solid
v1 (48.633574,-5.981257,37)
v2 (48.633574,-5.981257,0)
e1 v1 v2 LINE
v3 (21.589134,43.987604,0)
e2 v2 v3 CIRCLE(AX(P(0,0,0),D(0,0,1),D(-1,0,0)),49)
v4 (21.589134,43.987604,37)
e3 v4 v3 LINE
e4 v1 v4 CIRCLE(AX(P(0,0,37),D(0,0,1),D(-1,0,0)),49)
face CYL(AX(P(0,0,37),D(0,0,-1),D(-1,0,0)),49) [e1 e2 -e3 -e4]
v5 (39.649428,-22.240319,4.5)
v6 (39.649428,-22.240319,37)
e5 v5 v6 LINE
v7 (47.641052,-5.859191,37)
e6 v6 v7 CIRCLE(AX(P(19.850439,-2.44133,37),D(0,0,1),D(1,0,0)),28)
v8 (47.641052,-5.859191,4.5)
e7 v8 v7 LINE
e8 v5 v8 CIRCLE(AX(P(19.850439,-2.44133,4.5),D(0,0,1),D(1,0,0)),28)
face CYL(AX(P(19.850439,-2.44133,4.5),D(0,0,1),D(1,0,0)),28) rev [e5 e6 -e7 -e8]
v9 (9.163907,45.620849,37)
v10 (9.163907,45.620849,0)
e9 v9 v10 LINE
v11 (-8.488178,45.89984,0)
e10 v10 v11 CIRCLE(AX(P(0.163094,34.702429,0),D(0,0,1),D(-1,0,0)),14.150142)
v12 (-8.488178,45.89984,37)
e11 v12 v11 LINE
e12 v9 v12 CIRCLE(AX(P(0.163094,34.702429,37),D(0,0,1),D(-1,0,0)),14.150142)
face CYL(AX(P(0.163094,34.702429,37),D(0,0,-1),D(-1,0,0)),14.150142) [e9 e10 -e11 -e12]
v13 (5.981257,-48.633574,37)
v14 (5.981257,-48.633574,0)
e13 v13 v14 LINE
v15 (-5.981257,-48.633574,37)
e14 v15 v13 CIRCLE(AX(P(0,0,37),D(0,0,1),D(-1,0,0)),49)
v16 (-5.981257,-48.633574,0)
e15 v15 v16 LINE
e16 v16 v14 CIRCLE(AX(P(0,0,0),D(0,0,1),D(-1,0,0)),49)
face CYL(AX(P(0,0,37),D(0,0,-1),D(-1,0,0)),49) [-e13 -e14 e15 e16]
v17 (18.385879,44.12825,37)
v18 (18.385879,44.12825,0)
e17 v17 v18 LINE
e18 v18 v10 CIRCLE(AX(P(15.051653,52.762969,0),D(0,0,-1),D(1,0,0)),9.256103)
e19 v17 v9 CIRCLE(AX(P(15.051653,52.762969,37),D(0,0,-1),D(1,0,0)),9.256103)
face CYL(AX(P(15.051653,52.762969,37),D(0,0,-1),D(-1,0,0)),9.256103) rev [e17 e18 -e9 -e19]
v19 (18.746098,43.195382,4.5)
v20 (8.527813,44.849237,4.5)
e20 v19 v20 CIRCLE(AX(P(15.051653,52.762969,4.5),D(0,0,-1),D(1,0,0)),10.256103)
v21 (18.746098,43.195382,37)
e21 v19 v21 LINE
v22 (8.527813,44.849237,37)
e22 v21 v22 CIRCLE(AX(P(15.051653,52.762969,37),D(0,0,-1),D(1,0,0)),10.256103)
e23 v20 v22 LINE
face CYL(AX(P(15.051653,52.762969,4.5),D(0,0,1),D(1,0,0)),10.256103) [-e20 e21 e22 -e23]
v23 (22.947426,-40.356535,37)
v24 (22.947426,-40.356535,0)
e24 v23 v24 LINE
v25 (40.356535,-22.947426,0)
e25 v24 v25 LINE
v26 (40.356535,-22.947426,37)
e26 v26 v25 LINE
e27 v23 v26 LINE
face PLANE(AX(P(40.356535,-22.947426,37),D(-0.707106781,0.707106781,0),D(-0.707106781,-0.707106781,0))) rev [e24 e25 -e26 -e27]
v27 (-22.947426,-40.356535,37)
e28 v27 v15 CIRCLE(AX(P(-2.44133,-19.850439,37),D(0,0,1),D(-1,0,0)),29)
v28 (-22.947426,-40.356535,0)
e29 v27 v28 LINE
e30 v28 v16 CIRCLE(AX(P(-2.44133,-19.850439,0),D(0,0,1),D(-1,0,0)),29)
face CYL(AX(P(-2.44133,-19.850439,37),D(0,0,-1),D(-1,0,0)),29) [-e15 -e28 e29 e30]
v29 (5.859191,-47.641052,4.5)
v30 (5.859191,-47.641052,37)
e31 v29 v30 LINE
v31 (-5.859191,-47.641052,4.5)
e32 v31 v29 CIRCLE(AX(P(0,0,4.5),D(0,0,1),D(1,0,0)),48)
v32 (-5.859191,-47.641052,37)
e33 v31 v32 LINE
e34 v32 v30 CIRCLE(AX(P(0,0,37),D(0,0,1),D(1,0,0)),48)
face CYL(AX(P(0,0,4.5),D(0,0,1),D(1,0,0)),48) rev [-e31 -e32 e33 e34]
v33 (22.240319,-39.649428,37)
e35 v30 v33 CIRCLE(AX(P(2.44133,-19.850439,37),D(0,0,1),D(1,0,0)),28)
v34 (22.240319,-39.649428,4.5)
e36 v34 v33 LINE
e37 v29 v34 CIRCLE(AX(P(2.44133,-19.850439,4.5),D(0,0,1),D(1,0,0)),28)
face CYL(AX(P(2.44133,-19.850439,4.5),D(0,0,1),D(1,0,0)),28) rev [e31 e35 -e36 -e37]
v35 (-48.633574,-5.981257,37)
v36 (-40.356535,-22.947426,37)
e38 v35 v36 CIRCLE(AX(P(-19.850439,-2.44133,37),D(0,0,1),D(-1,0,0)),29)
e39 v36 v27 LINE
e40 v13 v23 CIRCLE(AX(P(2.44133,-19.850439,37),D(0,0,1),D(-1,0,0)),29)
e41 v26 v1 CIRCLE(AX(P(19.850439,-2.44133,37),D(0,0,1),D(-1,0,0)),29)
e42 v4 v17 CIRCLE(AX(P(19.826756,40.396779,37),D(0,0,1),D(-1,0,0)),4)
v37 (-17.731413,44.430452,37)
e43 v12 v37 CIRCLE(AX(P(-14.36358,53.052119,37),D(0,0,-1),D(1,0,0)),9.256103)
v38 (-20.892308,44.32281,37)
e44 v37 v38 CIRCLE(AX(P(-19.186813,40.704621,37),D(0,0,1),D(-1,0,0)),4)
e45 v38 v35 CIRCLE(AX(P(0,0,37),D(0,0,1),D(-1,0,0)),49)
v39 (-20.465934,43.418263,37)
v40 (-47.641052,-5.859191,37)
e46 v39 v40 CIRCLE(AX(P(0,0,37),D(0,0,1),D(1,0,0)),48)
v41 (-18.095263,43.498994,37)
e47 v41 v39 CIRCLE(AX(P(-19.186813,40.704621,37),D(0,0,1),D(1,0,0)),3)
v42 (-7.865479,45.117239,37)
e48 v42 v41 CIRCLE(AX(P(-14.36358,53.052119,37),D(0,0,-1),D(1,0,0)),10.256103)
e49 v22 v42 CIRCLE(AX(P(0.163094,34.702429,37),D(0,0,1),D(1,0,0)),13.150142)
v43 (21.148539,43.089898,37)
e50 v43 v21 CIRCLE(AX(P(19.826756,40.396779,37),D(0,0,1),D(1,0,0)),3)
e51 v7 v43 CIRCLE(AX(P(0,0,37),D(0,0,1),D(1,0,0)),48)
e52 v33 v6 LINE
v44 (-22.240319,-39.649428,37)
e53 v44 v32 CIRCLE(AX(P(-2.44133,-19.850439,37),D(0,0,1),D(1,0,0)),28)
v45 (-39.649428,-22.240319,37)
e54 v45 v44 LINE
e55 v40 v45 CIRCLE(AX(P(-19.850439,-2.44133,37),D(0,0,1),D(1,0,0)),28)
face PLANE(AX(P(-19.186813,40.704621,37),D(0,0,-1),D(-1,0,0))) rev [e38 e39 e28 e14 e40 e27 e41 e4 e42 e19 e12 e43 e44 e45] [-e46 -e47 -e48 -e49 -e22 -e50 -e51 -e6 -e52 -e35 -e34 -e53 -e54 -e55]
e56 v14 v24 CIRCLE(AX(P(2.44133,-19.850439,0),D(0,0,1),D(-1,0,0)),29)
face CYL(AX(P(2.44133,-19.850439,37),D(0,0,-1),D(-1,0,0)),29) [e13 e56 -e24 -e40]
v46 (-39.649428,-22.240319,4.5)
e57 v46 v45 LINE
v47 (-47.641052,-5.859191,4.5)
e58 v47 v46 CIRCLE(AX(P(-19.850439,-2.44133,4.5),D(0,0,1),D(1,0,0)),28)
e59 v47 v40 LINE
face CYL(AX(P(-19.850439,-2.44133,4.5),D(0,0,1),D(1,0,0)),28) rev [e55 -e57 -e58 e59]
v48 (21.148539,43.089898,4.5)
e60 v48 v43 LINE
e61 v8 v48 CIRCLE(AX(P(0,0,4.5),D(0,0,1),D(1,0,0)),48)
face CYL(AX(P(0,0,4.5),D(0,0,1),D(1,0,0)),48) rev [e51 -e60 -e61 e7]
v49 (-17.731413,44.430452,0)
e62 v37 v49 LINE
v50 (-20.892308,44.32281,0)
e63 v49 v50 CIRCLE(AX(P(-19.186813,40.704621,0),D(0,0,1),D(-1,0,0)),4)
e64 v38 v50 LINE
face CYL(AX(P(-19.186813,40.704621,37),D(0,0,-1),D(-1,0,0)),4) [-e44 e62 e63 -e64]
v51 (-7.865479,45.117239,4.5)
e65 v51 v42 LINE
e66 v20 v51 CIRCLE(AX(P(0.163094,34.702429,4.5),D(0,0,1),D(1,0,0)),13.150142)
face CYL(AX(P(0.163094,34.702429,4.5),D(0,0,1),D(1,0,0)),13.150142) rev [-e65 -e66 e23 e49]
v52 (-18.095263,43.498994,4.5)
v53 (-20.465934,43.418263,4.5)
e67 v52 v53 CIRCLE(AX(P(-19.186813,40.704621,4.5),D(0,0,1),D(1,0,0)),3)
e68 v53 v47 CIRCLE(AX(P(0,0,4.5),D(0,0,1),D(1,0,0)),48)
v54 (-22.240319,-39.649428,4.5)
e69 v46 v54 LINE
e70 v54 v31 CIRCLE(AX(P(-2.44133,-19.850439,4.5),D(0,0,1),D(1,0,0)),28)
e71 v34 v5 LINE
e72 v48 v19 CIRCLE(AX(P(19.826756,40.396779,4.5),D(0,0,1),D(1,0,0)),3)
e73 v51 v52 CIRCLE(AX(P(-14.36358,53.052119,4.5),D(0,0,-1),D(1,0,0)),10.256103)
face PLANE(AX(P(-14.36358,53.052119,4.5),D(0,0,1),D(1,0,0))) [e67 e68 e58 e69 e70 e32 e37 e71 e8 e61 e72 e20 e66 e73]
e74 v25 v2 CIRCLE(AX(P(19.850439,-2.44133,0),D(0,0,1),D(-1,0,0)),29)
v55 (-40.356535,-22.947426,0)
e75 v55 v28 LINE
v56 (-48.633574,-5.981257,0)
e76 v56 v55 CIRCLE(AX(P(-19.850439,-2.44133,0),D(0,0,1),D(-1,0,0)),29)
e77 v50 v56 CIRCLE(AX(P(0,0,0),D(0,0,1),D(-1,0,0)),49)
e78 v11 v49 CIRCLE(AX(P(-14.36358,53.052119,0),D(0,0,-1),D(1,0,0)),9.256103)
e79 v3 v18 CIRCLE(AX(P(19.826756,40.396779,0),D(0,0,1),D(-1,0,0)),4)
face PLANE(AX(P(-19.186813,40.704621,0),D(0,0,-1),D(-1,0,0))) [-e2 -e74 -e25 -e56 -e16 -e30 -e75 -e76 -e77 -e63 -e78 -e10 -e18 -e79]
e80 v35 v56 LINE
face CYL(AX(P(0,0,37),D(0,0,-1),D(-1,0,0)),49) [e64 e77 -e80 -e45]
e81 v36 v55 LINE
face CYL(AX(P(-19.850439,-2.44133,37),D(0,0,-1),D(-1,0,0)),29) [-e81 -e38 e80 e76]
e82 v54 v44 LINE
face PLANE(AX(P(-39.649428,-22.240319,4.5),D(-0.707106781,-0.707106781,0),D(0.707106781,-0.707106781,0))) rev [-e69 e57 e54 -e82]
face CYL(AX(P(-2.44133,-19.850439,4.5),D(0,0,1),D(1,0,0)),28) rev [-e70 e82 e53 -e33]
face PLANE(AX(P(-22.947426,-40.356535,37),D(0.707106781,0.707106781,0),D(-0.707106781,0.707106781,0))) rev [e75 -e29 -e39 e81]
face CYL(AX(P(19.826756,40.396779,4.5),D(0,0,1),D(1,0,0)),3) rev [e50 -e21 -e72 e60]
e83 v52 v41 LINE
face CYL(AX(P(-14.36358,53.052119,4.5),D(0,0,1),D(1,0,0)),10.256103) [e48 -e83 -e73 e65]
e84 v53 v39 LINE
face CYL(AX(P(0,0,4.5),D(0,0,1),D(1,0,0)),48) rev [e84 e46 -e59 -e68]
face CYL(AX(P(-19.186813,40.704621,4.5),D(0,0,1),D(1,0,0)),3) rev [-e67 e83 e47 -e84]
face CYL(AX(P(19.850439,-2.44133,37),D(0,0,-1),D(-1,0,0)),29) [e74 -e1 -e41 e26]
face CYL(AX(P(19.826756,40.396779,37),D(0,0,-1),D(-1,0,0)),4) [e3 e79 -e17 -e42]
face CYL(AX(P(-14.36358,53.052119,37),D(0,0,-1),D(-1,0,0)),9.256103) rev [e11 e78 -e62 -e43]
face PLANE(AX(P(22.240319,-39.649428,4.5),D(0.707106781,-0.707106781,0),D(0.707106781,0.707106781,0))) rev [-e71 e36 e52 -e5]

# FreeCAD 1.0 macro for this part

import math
import FreeCAD as App
import Part
import Sketcher

V = App.Vector

doc = App.newDocument("Part")
params = doc.addObject("Spreadsheet::Sheet", "Params")
for row, (alias, value) in enumerate([
    ("sketch1_radius", "29 mm"),
    ("sketch1_radius2", "49 mm"),
    ("sketch1_radius3", "4 mm"),
    ("pad1_length", "37 mm"),
    ("sketch2_radius", "28 mm"),
    ("sketch2_radius2", "48 mm"),
    ("sketch2_radius3", "3 mm"),
    ("pocket1_length", "32.5 mm"),
], start=1):
    params.set(f"A{row}", alias)
    params.set(f"B{row}", "=" + value)
    params.setAlias(f"B{row}", alias)

body = doc.addObject("PartDesign::Body", "Body")

# Sketch on XY plane
sketch1 = body.newObject("Sketcher::SketchObject", "Sketch")
sketch1.AttachmentSupport = (doc.getObject("XY_Plane"), [""])
sketch1.MapMode = "FlatFace"
sketch1.addGeometry([
    Part.LineSegment(V(22.9, -40.4, 0), V(40.4, -22.9, 0)),  # 0
    Part.ArcOfCircle(Part.Circle(V(19.9, -2.4, 0), V(0, 0, 1), 29), math.radians(-45), math.radians(-7)),  # 1
    Part.ArcOfCircle(Part.Circle(V(0, 0, 0), V(0, 0, 1), 49), math.radians(-7), math.radians(64)),  # 2
    Part.ArcOfCircle(Part.Circle(V(19.8, 40.4, 0), V(0, 0, 1), 4), math.radians(64), math.radians(111)),  # 3
    Part.ArcOfCircle(Part.Circle(V(15.1, 52.8, 0), V(0, 0, 1), 9.3), math.radians(-130), math.radians(-69)),  # 4
    Part.ArcOfCircle(Part.Circle(V(0.2, 34.7, 0), V(0, 0, 1), 14.2), math.radians(50), math.radians(128)),  # 5
    Part.ArcOfCircle(Part.Circle(V(-14.4, 53.1, 0), V(0, 0, 1), 9.3), math.radians(-111), math.radians(-51)),  # 6
    Part.ArcOfCircle(Part.Circle(V(-19.2, 40.7, 0), V(0, 0, 1), 4), math.radians(69), math.radians(115)),  # 7
    Part.ArcOfCircle(Part.Circle(V(0, 0, 0), V(0, 0, 1), 49), math.radians(115), math.radians(187)),  # 8
    Part.ArcOfCircle(Part.Circle(V(-19.9, -2.4, 0), V(0, 0, 1), 29), math.radians(-173), math.radians(-135)),  # 9
    Part.LineSegment(V(-40.4, -22.9, 0), V(-22.9, -40.4, 0)),  # 10
    Part.ArcOfCircle(Part.Circle(V(-2.4, -19.9, 0), V(0, 0, 1), 29), math.radians(-135), math.radians(-97)),  # 11
    Part.ArcOfCircle(Part.Circle(V(0, 0, 0), V(0, 0, 1), 49), math.radians(-97.01), math.radians(-82.99)),  # 12
    Part.ArcOfCircle(Part.Circle(V(2.4, -19.9, 0), V(0, 0, 1), 29), math.radians(-83), math.radians(-45)),  # 13
], False)
sketch1.addConstraint([
    Sketcher.Constraint("Tangent", 0, 2, 1, 1),
    Sketcher.Constraint("Tangent", 1, 2, 2, 1),
    Sketcher.Constraint("Tangent", 2, 2, 3, 1),
    Sketcher.Constraint("Tangent", 3, 2, 4, 2),
    Sketcher.Constraint("Tangent", 4, 1, 5, 1),
    Sketcher.Constraint("Coincident", 5, 2, 6, 2),
    Sketcher.Constraint("Tangent", 6, 1, 7, 1),
    Sketcher.Constraint("Tangent", 7, 2, 8, 1),
    Sketcher.Constraint("Tangent", 8, 2, 9, 1),
    Sketcher.Constraint("Tangent", 9, 2, 10, 1),
    Sketcher.Constraint("Tangent", 10, 2, 11, 1),
    Sketcher.Constraint("Tangent", 11, 2, 12, 1),
    Sketcher.Constraint("Tangent", 12, 2, 13, 1),
    Sketcher.Constraint("Tangent", 13, 2, 0, 1),
    Sketcher.Constraint("Coincident", 2, 3, -1, 1),
    Sketcher.Constraint("Coincident", 8, 3, -1, 1),
    Sketcher.Constraint("Coincident", 12, 3, -1, 1),
    Sketcher.Constraint("Equal", 4, 6),
    Sketcher.Constraint("Equal", 3, 7),
    Sketcher.Constraint("Equal", 2, 8),
    Sketcher.Constraint("Equal", 1, 9),
    Sketcher.Constraint("Equal", 9, 11),
    Sketcher.Constraint("Equal", 8, 12),
    Sketcher.Constraint("Equal", 11, 13),
    Sketcher.Constraint("Symmetric", 0, 2, 9, 2, -2),
    Sketcher.Constraint("Perpendicular", 0, 10),
    Sketcher.Constraint("Radius", 1, 29.0),
    Sketcher.Constraint("Radius", 2, 49.0),
    Sketcher.Constraint("Radius", 3, 4.0),
    Sketcher.Constraint("Radius", 4, 9.256103),
    Sketcher.Constraint("Radius", 5, 14.150142),
    Sketcher.Constraint("Distance", 0, 24.620198),
    Sketcher.Constraint("DistanceY", 1, 3, 4, 3, 55.204299),
    Sketcher.Constraint("DistanceY", 3, 2, 4, 1, 1.492599),
    Sketcher.Constraint("DistanceX", 7, 3, 6, 1, 1.4554),
    Sketcher.Constraint("DistanceX", 7, 2, 5, 3, 21.055402),
    Sketcher.Constraint("DistanceY", -1, 1, 3, 3, 40.396779),
])
sketch1.setExpression("Constraints[26]", "Params.sketch1_radius")
sketch1.setExpression("Constraints[27]", "Params.sketch1_radius2")
sketch1.setExpression("Constraints[28]", "Params.sketch1_radius3")
pad1 = body.newObject("PartDesign::Pad", "Pad")
pad1.Profile = sketch1
pad1.setExpression("Length", "Params.pad1_length")

# Sketch on XY plane
sketch2 = body.newObject("Sketcher::SketchObject", "Sketch001")
sketch2.AttachmentSupport = (doc.getObject("XY_Plane"), [""])
sketch2.MapMode = "FlatFace"
sketch2.AttachmentOffset = App.Placement(V(0, 0, 37), App.Rotation())
sketch2.addGeometry([
    Part.LineSegment(V(-39.6, -22.2, 0), V(-22.2, -39.6, 0)),  # 0
    Part.ArcOfCircle(Part.Circle(V(-2.4, -19.9, 0), V(0, 0, 1), 28), math.radians(-135), math.radians(-97)),  # 1
    Part.ArcOfCircle(Part.Circle(V(0, 0, 0), V(0, 0, 1), 48), math.radians(-97.01), math.radians(-82.99)),  # 2
    Part.ArcOfCircle(Part.Circle(V(2.4, -19.9, 0), V(0, 0, 1), 28), math.radians(-83), math.radians(-45)),  # 3
    Part.LineSegment(V(22.2, -39.6, 0), V(39.6, -22.2, 0)),  # 4
    Part.ArcOfCircle(Part.Circle(V(19.9, -2.4, 0), V(0, 0, 1), 28), math.radians(-45), math.radians(-7)),  # 5
    Part.ArcOfCircle(Part.Circle(V(0, 0, 0), V(0, 0, 1), 48), math.radians(-7), math.radians(64)),  # 6
    Part.ArcOfCircle(Part.Circle(V(19.8, 40.4, 0), V(0, 0, 1), 3), math.radians(64), math.radians(111)),  # 7
    Part.ArcOfCircle(Part.Circle(V(15.1, 52.8, 0), V(0, 0, 1), 10.3), math.radians(-130), math.radians(-69)),  # 8
    Part.ArcOfCircle(Part.Circle(V(0.2, 34.7, 0), V(0, 0, 1), 13.2), math.radians(50), math.radians(128)),  # 9
    Part.ArcOfCircle(Part.Circle(V(-14.4, 53.1, 0), V(0, 0, 1), 10.3), math.radians(-111), math.radians(-51)),  # 10
    Part.ArcOfCircle(Part.Circle(V(-19.2, 40.7, 0), V(0, 0, 1), 3), math.radians(69), math.radians(115)),  # 11
    Part.ArcOfCircle(Part.Circle(V(0, 0, 0), V(0, 0, 1), 48), math.radians(115), math.radians(187)),  # 12
    Part.ArcOfCircle(Part.Circle(V(-19.9, -2.4, 0), V(0, 0, 1), 28), math.radians(-173), math.radians(-135)),  # 13
], False)
sketch2.addConstraint([
    Sketcher.Constraint("Tangent", 0, 2, 1, 1),
    Sketcher.Constraint("Tangent", 1, 2, 2, 1),
    Sketcher.Constraint("Tangent", 2, 2, 3, 1),
    Sketcher.Constraint("Tangent", 3, 2, 4, 1),
    Sketcher.Constraint("Tangent", 4, 2, 5, 1),
    Sketcher.Constraint("Tangent", 5, 2, 6, 1),
    Sketcher.Constraint("Tangent", 6, 2, 7, 1),
    Sketcher.Constraint("Tangent", 7, 2, 8, 2),
    Sketcher.Constraint("Tangent", 8, 1, 9, 1),
    Sketcher.Constraint("Coincident", 9, 2, 10, 2),
    Sketcher.Constraint("Tangent", 10, 1, 11, 1),
    Sketcher.Constraint("Tangent", 11, 2, 12, 1),
    Sketcher.Constraint("Tangent", 12, 2, 13, 1),
    Sketcher.Constraint("Tangent", 13, 2, 0, 1),
    Sketcher.Constraint("Coincident", 2, 3, -1, 1),
    Sketcher.Constraint("Coincident", 6, 3, -1, 1),
    Sketcher.Constraint("Coincident", 12, 3, -1, 1),
    Sketcher.Constraint("Equal", 1, 3),
    Sketcher.Constraint("Equal", 3, 5),
    Sketcher.Constraint("Equal", 2, 6),
    Sketcher.Constraint("Equal", 8, 10),
    Sketcher.Constraint("Equal", 7, 11),
    Sketcher.Constraint("Equal", 6, 12),
    Sketcher.Constraint("Equal", 5, 13),
    Sketcher.Constraint("Symmetric", 0, 2, 3, 2, -2),
    Sketcher.Constraint("Perpendicular", 0, 4),
    Sketcher.Constraint("Radius", 1, 28.0),
    Sketcher.Constraint("Radius", 2, 48.0),
    Sketcher.Constraint("Radius", 7, 3.0),
    Sketcher.Constraint("Radius", 8, 10.256103),
    Sketcher.Constraint("Radius", 9, 13.150142),
    Sketcher.Constraint("DistanceY", 8, 1, 9, 2, 0.268002),
    Sketcher.Constraint("Distance", 0, 24.620198),
    Sketcher.Constraint("DistanceX", -1, 1, 7, 2, 18.746098),
    Sketcher.Constraint("DistanceY", 5, 3, 8, 3, 55.204299),
    Sketcher.Constraint("DistanceX", 10, 3, 9, 2, 6.498102),
    Sketcher.Constraint("DistanceY", -1, 1, 9, 3, 34.702429),
])
sketch2.setExpression("Constraints[26]", "Params.sketch2_radius")
sketch2.setExpression("Constraints[27]", "Params.sketch2_radius2")
sketch2.setExpression("Constraints[28]", "Params.sketch2_radius3")
pocket1 = body.newObject("PartDesign::Pocket", "Pocket")
pocket1.Profile = sketch2
pocket1.setExpression("Length", "Params.pocket1_length")

doc.recompute()
